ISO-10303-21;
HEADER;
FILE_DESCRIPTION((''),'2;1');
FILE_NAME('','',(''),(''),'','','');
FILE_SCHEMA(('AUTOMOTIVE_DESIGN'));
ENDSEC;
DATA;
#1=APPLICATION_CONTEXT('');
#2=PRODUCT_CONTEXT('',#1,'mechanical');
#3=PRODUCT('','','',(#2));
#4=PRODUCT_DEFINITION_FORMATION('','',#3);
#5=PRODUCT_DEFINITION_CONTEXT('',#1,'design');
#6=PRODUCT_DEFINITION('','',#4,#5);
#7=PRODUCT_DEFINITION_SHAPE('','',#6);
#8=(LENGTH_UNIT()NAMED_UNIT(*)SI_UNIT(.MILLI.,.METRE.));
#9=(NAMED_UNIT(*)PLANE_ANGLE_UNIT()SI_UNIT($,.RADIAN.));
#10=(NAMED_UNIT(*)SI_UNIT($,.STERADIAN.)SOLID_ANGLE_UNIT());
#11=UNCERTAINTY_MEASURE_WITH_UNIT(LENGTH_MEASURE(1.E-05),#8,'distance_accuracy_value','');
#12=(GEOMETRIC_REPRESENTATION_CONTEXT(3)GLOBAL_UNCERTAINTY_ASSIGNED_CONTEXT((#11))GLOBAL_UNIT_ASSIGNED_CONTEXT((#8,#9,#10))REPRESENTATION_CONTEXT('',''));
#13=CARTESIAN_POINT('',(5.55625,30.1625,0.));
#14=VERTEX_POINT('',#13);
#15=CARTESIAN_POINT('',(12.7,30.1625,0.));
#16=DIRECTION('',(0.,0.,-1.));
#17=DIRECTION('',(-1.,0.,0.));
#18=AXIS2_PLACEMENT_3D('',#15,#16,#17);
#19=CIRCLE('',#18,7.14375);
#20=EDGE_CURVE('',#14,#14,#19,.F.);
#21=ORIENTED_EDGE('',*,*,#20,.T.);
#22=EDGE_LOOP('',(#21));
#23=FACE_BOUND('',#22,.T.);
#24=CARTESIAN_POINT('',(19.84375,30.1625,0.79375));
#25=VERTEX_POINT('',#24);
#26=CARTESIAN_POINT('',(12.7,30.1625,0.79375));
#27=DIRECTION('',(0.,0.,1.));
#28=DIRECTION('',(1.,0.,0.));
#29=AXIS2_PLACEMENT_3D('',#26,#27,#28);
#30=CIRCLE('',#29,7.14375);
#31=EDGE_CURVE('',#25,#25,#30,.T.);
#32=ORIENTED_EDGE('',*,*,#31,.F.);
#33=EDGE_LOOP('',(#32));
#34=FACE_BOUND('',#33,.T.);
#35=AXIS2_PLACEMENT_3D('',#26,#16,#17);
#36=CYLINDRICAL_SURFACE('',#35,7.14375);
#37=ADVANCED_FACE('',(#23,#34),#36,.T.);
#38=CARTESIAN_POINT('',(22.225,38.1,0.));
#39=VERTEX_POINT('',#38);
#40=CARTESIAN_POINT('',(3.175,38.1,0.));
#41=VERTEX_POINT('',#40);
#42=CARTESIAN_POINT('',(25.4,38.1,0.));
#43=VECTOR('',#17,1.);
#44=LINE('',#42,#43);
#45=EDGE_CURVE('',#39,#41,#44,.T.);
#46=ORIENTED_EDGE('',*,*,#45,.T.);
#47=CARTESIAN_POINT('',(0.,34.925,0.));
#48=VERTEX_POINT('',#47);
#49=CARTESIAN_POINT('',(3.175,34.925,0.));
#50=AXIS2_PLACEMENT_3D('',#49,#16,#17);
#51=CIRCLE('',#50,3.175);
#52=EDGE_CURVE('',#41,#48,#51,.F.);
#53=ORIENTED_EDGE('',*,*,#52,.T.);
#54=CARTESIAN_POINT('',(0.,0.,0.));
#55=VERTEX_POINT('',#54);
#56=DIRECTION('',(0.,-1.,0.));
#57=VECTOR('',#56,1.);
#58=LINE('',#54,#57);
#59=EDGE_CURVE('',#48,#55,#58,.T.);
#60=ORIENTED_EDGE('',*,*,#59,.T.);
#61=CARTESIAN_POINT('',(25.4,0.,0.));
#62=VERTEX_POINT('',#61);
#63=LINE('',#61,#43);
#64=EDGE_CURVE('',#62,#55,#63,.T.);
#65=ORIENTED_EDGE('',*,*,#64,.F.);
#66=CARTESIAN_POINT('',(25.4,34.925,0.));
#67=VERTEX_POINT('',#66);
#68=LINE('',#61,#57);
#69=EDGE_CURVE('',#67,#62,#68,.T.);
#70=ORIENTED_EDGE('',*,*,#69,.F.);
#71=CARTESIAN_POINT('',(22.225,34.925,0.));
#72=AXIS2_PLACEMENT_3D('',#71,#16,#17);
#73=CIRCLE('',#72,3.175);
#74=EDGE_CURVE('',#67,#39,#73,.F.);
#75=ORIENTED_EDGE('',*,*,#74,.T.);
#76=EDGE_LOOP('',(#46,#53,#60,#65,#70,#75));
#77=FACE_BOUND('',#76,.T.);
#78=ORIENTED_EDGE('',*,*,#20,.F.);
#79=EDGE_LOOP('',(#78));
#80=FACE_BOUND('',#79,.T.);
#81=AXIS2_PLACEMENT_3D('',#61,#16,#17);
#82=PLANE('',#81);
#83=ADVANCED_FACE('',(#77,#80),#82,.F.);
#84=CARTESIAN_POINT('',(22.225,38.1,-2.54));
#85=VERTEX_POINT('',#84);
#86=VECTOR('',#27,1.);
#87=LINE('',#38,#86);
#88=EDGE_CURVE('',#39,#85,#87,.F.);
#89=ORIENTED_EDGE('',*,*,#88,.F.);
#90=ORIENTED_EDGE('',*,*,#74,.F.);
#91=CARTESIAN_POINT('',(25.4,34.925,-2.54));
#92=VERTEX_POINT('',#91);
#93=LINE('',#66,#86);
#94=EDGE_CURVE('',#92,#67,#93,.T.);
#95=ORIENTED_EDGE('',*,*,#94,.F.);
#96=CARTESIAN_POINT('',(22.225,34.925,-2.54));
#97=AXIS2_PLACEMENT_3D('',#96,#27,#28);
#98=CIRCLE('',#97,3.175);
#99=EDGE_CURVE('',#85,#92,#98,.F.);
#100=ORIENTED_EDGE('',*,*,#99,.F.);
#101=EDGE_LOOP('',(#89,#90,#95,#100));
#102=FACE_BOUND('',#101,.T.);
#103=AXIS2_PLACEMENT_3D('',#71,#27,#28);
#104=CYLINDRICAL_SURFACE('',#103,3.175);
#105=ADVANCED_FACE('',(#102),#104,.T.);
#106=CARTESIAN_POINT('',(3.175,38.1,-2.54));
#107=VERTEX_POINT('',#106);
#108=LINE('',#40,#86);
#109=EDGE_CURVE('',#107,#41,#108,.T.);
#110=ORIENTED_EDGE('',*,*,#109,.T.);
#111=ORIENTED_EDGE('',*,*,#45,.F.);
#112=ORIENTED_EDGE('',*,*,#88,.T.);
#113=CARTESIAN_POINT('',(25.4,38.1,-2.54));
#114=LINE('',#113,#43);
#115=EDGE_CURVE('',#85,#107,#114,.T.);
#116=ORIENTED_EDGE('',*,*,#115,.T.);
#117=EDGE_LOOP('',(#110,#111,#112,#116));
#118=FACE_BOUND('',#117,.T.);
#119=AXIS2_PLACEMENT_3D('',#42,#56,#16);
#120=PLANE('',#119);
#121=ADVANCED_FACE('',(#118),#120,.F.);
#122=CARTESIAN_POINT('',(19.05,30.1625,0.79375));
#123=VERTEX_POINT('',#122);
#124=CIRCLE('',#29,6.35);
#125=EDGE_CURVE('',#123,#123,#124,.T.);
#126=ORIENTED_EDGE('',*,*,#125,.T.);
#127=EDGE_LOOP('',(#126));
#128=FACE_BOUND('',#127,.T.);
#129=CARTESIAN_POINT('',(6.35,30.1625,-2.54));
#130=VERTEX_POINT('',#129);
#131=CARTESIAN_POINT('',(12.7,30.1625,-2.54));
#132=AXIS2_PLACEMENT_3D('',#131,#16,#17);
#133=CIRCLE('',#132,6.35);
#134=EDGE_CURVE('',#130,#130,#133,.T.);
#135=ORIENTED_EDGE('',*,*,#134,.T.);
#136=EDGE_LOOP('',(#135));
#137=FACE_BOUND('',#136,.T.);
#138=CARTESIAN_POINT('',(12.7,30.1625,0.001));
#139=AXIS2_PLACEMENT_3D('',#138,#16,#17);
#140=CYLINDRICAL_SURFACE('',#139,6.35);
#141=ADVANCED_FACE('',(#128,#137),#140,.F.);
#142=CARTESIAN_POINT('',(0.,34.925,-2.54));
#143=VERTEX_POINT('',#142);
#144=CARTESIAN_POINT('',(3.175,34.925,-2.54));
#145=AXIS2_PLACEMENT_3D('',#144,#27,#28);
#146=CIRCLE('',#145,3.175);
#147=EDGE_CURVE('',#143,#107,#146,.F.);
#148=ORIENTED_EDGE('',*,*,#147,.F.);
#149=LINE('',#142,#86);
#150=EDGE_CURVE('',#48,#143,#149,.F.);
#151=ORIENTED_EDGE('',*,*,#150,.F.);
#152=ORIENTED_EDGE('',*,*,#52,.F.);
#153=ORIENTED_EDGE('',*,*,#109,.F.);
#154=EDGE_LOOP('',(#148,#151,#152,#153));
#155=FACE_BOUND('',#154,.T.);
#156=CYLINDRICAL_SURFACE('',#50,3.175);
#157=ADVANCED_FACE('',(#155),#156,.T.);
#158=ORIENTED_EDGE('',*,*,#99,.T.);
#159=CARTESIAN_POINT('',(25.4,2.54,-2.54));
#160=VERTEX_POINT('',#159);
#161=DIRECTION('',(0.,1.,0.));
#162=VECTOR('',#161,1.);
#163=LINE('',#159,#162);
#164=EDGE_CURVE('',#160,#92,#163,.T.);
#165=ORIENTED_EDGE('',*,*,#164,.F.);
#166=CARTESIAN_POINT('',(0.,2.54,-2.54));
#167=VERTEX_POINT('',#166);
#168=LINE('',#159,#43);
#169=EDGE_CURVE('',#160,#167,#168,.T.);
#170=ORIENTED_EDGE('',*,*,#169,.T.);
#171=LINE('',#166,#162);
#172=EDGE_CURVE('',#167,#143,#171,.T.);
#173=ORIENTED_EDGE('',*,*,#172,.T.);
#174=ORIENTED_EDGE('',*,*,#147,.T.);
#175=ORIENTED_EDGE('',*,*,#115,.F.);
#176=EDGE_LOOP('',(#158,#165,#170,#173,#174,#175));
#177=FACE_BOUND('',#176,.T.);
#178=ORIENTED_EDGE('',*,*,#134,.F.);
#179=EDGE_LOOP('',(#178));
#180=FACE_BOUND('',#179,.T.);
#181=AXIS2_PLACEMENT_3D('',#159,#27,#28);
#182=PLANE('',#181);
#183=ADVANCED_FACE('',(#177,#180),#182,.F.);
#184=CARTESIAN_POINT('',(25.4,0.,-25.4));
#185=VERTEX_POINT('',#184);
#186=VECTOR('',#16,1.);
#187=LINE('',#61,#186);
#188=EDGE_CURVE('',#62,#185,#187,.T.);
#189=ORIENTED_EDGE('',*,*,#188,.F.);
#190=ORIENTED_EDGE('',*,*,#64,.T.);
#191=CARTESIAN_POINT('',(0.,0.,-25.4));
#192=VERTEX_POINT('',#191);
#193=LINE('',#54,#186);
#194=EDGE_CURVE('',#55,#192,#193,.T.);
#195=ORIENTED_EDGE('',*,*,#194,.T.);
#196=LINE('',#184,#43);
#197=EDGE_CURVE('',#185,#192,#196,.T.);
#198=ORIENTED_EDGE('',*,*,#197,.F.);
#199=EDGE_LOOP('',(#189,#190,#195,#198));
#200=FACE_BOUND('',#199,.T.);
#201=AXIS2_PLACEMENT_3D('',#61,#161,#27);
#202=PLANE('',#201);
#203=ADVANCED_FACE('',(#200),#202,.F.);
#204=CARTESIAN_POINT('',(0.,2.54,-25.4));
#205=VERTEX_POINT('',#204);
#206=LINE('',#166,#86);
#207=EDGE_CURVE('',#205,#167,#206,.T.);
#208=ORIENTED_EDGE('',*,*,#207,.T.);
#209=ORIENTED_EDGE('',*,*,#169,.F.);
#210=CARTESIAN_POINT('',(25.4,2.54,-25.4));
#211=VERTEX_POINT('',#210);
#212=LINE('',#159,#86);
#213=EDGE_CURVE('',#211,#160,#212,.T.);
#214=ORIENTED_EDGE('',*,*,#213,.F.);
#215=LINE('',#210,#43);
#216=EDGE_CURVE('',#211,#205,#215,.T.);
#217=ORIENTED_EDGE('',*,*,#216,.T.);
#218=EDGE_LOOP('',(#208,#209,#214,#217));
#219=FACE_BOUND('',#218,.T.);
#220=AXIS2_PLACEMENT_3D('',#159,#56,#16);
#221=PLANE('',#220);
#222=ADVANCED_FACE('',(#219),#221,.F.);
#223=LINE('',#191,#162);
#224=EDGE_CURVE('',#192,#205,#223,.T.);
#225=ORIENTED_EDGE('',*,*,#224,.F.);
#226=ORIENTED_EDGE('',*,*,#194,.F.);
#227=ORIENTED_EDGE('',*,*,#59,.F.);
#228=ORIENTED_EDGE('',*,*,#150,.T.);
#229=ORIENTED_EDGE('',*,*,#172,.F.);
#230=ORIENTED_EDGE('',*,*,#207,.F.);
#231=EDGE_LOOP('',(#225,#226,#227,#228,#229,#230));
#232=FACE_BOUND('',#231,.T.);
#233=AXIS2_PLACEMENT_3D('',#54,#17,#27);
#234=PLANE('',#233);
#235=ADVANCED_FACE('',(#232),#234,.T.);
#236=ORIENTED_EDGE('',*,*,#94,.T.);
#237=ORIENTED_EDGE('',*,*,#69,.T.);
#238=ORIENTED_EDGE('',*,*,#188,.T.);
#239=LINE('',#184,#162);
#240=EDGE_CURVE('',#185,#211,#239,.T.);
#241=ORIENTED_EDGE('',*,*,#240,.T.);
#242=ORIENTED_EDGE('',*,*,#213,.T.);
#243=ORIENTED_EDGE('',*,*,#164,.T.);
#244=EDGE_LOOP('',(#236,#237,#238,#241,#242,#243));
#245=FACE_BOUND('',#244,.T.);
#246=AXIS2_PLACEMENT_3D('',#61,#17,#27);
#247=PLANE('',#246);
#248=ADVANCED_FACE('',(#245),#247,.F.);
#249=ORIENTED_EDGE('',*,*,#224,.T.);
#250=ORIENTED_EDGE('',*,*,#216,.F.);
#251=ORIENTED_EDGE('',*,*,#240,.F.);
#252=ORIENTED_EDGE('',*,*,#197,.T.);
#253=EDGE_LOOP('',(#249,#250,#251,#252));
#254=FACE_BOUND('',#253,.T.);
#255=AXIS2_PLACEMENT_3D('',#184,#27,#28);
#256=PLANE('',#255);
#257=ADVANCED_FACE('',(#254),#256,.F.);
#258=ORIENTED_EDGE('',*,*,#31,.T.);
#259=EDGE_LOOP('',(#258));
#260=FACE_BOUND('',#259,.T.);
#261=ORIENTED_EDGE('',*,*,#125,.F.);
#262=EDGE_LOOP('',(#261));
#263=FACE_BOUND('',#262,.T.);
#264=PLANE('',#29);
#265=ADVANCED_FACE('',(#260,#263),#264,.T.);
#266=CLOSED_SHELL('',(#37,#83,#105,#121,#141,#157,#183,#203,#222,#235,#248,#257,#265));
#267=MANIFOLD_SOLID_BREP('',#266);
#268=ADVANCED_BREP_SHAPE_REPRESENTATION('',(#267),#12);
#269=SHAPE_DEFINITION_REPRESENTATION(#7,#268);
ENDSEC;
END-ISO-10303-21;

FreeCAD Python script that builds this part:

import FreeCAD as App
import Part
import Sketcher
Q = App.Units.Quantity


def edges_at(feature, points):
    """Names of the edges that pass closest to the given points."""
    edges = feature.Shape.Edges
    near = lambda p: min(range(len(edges)), key=lambda i: edges[i].distToShape(Part.Vertex(*p))[0])
    return sorted({f"Edge{near(p) + 1}" for p in points})


def add_polygon(sketch, points):
    """Adds a closed chain of lines whose ends are joined by coincident constraints."""
    first, n = sketch.GeometryCount, len(points)
    for a, b in zip(points, points[1:] + points[:1]):
        sketch.addGeometry(Part.LineSegment(App.Vector(*a, 0), App.Vector(*b, 0)), False)
    for i in range(n):
        sketch.addConstraint(Sketcher.Constraint("Coincident", first + i, 2, first + (i + 1) % n, 1))

doc = App.newDocument("Part")
params = doc.addObject("Spreadsheet::Sheet", "Params")
for row, (alias, value) in enumerate([
    ("sketch1_height", "1 in"),
    ("sketch1_width", "1.4 in"),
    ("sketch1_width2", "1.5 in"),
    ("pad1_length", "1 in"),
    ("sketch2_diameter", "0.5 in"),
    ("fillet_radius", "0.125 in"),
    ("sketch3_diameter", "0.5 in"),
    ("sketch3_diameter2", "0.5625 in"),
    ("pad2_length", "0.03125 in"),
], start=1):
    params.set(f"A{row}", alias)
    params.set(f"B{row}", "=" + value)
    params.setAlias(f"B{row}", alias)

body = doc.addObject("PartDesign::Body", "Body")

sketch1 = body.newObject("Sketcher::SketchObject", "Sketch")
sketch1.AttachmentSupport = (doc.getObject("YZ_Plane"), [""])
sketch1.MapMode = "FlatFace"
add_polygon(sketch1, [(2.5, -25.4), (2.5, -2.5), (38.1, -2.5), (38.1, 0), (0, 0), (0, -25.4)])
sketch1.addConstraint(Sketcher.Constraint("Vertical", 0))
sketch1.addConstraint(Sketcher.Constraint("Horizontal", 1))
sketch1.addConstraint(Sketcher.Constraint("Vertical", 2))
sketch1.addConstraint(Sketcher.Constraint("Horizontal", 3))
sketch1.addConstraint(Sketcher.Constraint("Vertical", 4))
sketch1.addConstraint(Sketcher.Constraint("Horizontal", 5))
sketch1.addConstraint(Sketcher.Constraint("Coincident", 3, 2, -1, 1))
sketch1.addConstraint(Sketcher.Constraint("Equal", 5, 2))
sketch1.addConstraint(Sketcher.Constraint("DistanceY", 4, 2, 4, 1, Q("1 in")))
sketch1.addConstraint(Sketcher.Constraint("DistanceX", 1, 1, 1, 2, Q("1.4 in")))
sketch1.addConstraint(Sketcher.Constraint("DistanceX", 3, 2, 3, 1, Q("1.5 in")))
sketch1.setExpression("Constraints[14]", "Params.sketch1_height")
sketch1.setExpression("Constraints[15]", "Params.sketch1_width")
sketch1.setExpression("Constraints[16]", "Params.sketch1_width2")
pad1 = body.newObject("PartDesign::Pad", "Pad")
pad1.Profile = sketch1
pad1.setExpression("Length", "Params.pad1_length")

sketch2 = body.newObject("Sketcher::SketchObject", "Sketch001")
sketch2.AttachmentSupport = (doc.getObject("XY_Plane"), [""])
sketch2.MapMode = "FlatFace"
sketch2.AttachmentOffset = App.Placement(App.Vector(0, 0, -0.1 * 25.4), App.Rotation())
sketch2.addGeometry(Part.Circle(App.Vector(13, 30, 0), App.Vector(0, 0, 1), 6), False)
sketch2.addConstraint(Sketcher.Constraint("Diameter", 0, Q("0.5 in")))
sketch2.addConstraint(Sketcher.Constraint("DistanceX", -1, 1, 0, 3, Q("0.5 in")))
sketch2.addConstraint(Sketcher.Constraint("DistanceY", -1, 1, 0, 3, Q("1.1875 in")))
sketch2.setExpression("Constraints[0]", "Params.sketch2_diameter")
pocket1 = body.newObject("PartDesign::Pocket", "Pocket")
pocket1.Profile = sketch2
pocket1.Type = "UpToFirst"
pocket1.Reversed = True
doc.recompute()

fillet = body.newObject("PartDesign::Fillet", "Fillet")
fillet.Base = (pocket1, edges_at(pocket1, [(25.4, 38.1, -1.27), (0, 38.1, -1.27)]))
fillet.setExpression("Radius", "Params.fillet_radius")

sketch3 = body.newObject("Sketcher::SketchObject", "Sketch002")
sketch3.AttachmentSupport = (doc.getObject("XY_Plane"), [""])
sketch3.MapMode = "FlatFace"
sketch3.addGeometry(Part.Circle(App.Vector(13, 30, 0), App.Vector(0, 0, 1), 7), False)
sketch3.addGeometry(Part.Circle(App.Vector(13, 30, 0), App.Vector(0, 0, 1), 6), False)
sketch3.addConstraint(Sketcher.Constraint("Coincident", 1, 3, 0, 3))
sketch3.addConstraint(Sketcher.Constraint("Diameter", 1, Q("0.5 in")))
sketch3.addConstraint(Sketcher.Constraint("Diameter", 0, Q("0.5625 in")))
sketch3.addConstraint(Sketcher.Constraint("DistanceX", -1, 1, 0, 3, Q("0.5 in")))
sketch3.addConstraint(Sketcher.Constraint("DistanceY", -1, 1, 0, 3, Q("1.1875 in")))
sketch3.setExpression("Constraints[1]", "Params.sketch3_diameter")
sketch3.setExpression("Constraints[2]", "Params.sketch3_diameter2")
pad2 = body.newObject("PartDesign::Pad", "Pad001")
pad2.Profile = sketch3
pad2.setExpression("Length", "Params.pad2_length")

doc.recompute()
